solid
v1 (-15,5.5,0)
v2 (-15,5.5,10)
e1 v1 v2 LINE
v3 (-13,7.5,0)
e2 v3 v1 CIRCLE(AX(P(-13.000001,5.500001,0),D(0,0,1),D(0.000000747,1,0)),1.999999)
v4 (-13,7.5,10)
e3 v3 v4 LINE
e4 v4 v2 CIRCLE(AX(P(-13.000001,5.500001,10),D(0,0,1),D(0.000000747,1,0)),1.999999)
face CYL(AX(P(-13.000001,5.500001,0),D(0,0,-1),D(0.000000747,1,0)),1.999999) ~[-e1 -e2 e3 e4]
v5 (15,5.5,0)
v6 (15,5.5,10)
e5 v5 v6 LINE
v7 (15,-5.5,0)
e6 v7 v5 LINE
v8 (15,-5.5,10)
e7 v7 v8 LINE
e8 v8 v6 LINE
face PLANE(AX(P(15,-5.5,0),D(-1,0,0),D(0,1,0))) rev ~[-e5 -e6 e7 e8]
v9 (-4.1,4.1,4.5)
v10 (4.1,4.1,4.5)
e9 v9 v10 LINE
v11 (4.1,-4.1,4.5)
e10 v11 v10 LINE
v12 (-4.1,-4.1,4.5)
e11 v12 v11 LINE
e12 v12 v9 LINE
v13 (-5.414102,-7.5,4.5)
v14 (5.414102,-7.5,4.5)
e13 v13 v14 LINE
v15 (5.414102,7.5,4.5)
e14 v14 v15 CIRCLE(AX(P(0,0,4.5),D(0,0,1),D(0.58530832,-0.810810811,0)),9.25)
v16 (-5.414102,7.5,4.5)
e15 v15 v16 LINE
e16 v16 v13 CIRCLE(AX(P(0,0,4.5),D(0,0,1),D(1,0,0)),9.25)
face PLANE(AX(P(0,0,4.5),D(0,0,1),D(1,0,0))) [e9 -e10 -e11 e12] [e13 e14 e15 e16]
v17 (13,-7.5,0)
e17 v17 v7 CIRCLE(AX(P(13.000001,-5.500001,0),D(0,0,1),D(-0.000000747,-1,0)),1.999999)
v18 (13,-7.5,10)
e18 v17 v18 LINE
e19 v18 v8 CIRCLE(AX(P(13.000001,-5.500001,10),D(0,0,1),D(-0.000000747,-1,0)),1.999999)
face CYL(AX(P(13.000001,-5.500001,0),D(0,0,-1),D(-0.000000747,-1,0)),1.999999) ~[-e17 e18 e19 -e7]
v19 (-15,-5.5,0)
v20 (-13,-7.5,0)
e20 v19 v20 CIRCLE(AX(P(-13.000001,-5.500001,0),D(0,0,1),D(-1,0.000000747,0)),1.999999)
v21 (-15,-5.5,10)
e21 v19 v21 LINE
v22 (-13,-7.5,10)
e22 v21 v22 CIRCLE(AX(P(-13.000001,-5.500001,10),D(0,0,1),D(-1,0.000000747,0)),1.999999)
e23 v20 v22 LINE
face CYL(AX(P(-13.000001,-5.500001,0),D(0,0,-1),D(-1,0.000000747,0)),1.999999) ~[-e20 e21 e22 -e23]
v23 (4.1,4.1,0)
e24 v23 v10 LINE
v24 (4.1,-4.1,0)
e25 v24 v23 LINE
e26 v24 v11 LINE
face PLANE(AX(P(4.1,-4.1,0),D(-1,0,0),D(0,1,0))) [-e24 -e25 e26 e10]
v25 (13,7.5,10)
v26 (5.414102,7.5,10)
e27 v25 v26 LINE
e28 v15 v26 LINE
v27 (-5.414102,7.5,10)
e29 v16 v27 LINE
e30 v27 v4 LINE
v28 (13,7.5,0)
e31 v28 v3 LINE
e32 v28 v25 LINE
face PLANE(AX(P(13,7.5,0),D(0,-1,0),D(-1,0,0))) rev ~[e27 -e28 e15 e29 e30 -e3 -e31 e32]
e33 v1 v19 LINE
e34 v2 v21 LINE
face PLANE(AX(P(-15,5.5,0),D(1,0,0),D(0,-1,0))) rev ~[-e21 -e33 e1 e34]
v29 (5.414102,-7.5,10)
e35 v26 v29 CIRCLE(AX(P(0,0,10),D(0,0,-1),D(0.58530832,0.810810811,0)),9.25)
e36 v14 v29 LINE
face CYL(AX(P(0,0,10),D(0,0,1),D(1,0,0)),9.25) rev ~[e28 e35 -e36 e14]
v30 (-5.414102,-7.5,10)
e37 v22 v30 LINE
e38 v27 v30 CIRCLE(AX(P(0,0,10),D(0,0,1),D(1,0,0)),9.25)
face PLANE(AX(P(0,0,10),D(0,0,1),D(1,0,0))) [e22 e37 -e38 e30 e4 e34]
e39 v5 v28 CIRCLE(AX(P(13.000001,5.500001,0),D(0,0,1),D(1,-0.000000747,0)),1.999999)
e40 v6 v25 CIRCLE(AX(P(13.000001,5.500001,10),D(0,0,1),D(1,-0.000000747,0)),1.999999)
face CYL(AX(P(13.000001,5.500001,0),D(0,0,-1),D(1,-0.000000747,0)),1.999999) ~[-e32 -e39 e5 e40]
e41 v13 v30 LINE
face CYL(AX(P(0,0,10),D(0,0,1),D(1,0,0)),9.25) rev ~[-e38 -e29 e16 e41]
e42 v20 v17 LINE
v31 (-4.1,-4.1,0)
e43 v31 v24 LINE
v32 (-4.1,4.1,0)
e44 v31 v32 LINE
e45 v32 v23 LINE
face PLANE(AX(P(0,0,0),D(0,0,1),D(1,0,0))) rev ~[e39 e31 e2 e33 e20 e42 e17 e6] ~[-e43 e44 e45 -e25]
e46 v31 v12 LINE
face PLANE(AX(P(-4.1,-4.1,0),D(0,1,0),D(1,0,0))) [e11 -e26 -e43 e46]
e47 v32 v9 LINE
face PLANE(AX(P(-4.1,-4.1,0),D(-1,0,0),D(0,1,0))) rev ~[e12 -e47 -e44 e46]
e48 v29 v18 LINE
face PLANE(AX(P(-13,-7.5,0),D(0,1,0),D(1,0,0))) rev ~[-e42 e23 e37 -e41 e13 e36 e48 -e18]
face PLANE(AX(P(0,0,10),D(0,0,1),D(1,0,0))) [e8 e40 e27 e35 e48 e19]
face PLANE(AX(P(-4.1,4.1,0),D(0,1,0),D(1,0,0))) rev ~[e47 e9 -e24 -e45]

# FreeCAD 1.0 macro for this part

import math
import FreeCAD as App
import Part
import Sketcher

V = App.Vector


def add_polygon(sketch, points):
    """Adds a closed chain of lines whose ends are joined by coincident constraints."""
    first, n = sketch.GeometryCount, len(points)
    for a, b in zip(points, points[1:] + points[:1]):
        sketch.addGeometry(Part.LineSegment(App.Vector(*a, 0), App.Vector(*b, 0)), False)
    for i in range(n):
        sketch.addConstraint(Sketcher.Constraint("Coincident", first + i, 2, first + (i + 1) % n, 1))

doc = App.newDocument("Part")
params = doc.addObject("Spreadsheet::Sheet", "Params")
for row, (alias, value) in enumerate([
    ("sketch1_radius", "1.999999 mm"),
    ("sketch1_width", "26 mm"),
    ("sketch1_height", "11 mm"),
    ("sketch1_width2", "8.2 mm"),
    ("pad1_length", "10 mm"),
    ("sketch2_diameter", "18.5 mm"),
    ("pocket1_length", "5.5 mm"),
], start=1):
    params.set(f"A{row}", alias)
    params.set(f"B{row}", "=" + value)
    params.setAlias(f"B{row}", alias)

body = doc.addObject("PartDesign::Body", "Body")

# Sketch on XY plane
sketch1 = doc.addObject("Sketcher::SketchObject", "Sketch")
body.addObject(sketch1)
sketch1.AttachmentSupport = (doc.XY_Plane, [""])
sketch1.MapMode = "FlatFace"
sketch1.addGeometry(Part.ArcOfCircle(Part.Circle(V(13.000001, 5.500001, 0), V(0, 0, 1), 1.999999), math.radians(-0.000043), math.radians(90.000043)), False)  # 0
sketch1.addGeometry(Part.LineSegment(V(13, 7.5, 0), V(-13, 7.5, 0)), False)  # 1
sketch1.addGeometry(Part.ArcOfCircle(Part.Circle(V(-13.000001, 5.500001, 0), V(0, 0, 1), 1.999999), math.radians(89.999957), math.radians(180.000043)), False)  # 2
sketch1.addGeometry(Part.LineSegment(V(-15, 5.5, 0), V(-15, -5.5, 0)), False)  # 3
sketch1.addGeometry(Part.ArcOfCircle(Part.Circle(V(-13.000001, -5.500001, 0), V(0, 0, 1), 1.999999), math.radians(179.999957), math.radians(270.000043)), False)  # 4
sketch1.addGeometry(Part.LineSegment(V(-13, -7.5, 0), V(13, -7.5, 0)), False)  # 5
sketch1.addGeometry(Part.ArcOfCircle(Part.Circle(V(13.000001, -5.500001, 0), V(0, 0, 1), 1.999999), math.radians(-90.000043), math.radians(0.000043)), False)  # 6
sketch1.addGeometry(Part.LineSegment(V(15, -5.5, 0), V(15, 5.5, 0)), False)  # 7
add_polygon(sketch1, [(4.1, -4.1), (-4.1, -4.1), (-4.1, 4.1), (4.1, 4.1)])  # lines 8-11
sketch1.addConstraint(Sketcher.Constraint("Tangent", 0, 2, 1, 1))
sketch1.addConstraint(Sketcher.Constraint("Tangent", 1, 2, 2, 1))
sketch1.addConstraint(Sketcher.Constraint("Tangent", 2, 2, 3, 1))
sketch1.addConstraint(Sketcher.Constraint("Tangent", 3, 2, 4, 1))
sketch1.addConstraint(Sketcher.Constraint("Tangent", 4, 2, 5, 1))
sketch1.addConstraint(Sketcher.Constraint("Tangent", 5, 2, 6, 1))
sketch1.addConstraint(Sketcher.Constraint("Tangent", 6, 2, 7, 1))
sketch1.addConstraint(Sketcher.Constraint("Tangent", 7, 2, 0, 1))
sketch1.addConstraint(Sketcher.Constraint("Horizontal", 1))
sketch1.addConstraint(Sketcher.Constraint("Vertical", 3))
sketch1.addConstraint(Sketcher.Constraint("Horizontal", 5))
sketch1.addConstraint(Sketcher.Constraint("Vertical", 7))
sketch1.addConstraint(Sketcher.Constraint("Horizontal", 8))
sketch1.addConstraint(Sketcher.Constraint("Vertical", 9))
sketch1.addConstraint(Sketcher.Constraint("Horizontal", 10))
sketch1.addConstraint(Sketcher.Constraint("Vertical", 11))
sketch1.addConstraint(Sketcher.Constraint("Equal", 0, 2))
sketch1.addConstraint(Sketcher.Constraint("Equal", 2, 4))
sketch1.addConstraint(Sketcher.Constraint("Equal", 4, 6))
sketch1.addConstraint(Sketcher.Constraint("Symmetric", 0, 3, 4, 3, -1, 1))
sketch1.addConstraint(Sketcher.Constraint("Symmetric", 8, 2, 10, 2, -1, 1))
sketch1.addConstraint(Sketcher.Constraint("Equal", 10, 9))
sketch1.addConstraint(Sketcher.Constraint("Radius", 0, 1.999999))
sketch1.addConstraint(Sketcher.Constraint("DistanceX", 1, 2, 1, 1, 26.0))
sketch1.addConstraint(Sketcher.Constraint("DistanceY", 3, 2, 3, 1, 11.0))
sketch1.addConstraint(Sketcher.Constraint("DistanceX", 8, 2, 8, 1, 8.2))
sketch1.setExpression("Constraints[26]", "Params.sketch1_radius")
sketch1.setExpression("Constraints[27]", "Params.sketch1_width")
sketch1.setExpression("Constraints[28]", "Params.sketch1_height")
sketch1.setExpression("Constraints[29]", "Params.sketch1_width2")
pad1 = doc.addObject("PartDesign::Pad", "Pad")
body.addObject(pad1)
pad1.Profile = sketch1
pad1.setExpression("Length", "Params.pad1_length")

# Sketch on XY plane
sketch2 = doc.addObject("Sketcher::SketchObject", "Sketch001")
body.addObject(sketch2)
sketch2.AttachmentSupport = (doc.XY_Plane, [""])
sketch2.MapMode = "FlatFace"
sketch2.AttachmentOffset = App.Placement(V(0, 0, 10), App.Rotation())
sketch2.addGeometry(Part.Circle(V(0, 0, 0), V(0, 0, 1), 9.25), False)
sketch2.addConstraint(Sketcher.Constraint("Coincident", 0, 3, -1, 1))
sketch2.addConstraint(Sketcher.Constraint("Diameter", 0, 18.5))
sketch2.setExpression("Constraints[1]", "Params.sketch2_diameter")
pocket1 = doc.addObject("PartDesign::Pocket", "Pocket")
body.addObject(pocket1)
pocket1.Profile = sketch2
pocket1.setExpression("Length", "Params.pocket1_length")

doc.recompute()
